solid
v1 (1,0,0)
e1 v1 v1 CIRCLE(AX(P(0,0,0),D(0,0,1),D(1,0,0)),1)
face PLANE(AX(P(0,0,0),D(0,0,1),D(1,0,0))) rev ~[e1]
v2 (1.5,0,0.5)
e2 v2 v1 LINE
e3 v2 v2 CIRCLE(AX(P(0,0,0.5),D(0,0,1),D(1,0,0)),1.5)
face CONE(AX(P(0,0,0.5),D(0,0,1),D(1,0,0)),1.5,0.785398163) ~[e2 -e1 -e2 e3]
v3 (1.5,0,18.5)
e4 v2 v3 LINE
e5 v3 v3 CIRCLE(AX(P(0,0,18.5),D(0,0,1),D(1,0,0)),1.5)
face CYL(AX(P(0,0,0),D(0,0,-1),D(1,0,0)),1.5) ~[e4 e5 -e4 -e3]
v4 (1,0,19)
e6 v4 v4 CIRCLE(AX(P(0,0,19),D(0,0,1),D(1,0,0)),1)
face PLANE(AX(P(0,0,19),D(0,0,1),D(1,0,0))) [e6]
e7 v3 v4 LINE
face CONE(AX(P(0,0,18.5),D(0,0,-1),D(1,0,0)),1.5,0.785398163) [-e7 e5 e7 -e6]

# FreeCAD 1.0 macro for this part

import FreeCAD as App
import Part
import Sketcher


def edges_at(feature, points):
    """Names of the edges that pass closest to the given points."""
    edges = feature.Shape.Edges
    near = lambda p: min(range(len(edges)), key=lambda i: edges[i].distToShape(Part.Vertex(*p))[0])
    return sorted({f"Edge{near(p) + 1}" for p in points})

doc = App.newDocument("Part")
params = doc.addObject("Spreadsheet::Sheet", "Params")
for row, (alias, value) in enumerate([
    ("sketch1_diameter", "3 mm"),
    ("pad1_length", "19 mm"),
    ("chamfer_size", "0.5 mm"),
], start=1):
    params.set(f"A{row}", alias)
    params.set(f"B{row}", "=" + value)
    params.setAlias(f"B{row}", alias)

body = doc.addObject("PartDesign::Body", "Body")

sketch1 = body.newObject("Sketcher::SketchObject", "Sketch")
sketch1.AttachmentSupport = (doc.getObject("XY_Plane"), [""])
sketch1.MapMode = "FlatFace"
sketch1.addGeometry(Part.Circle(App.Vector(0, 0, 0), App.Vector(0, 0, 1), 1.5), False)
sketch1.addConstraint([
    Sketcher.Constraint("Coincident", 0, 3, -1, 1),
    Sketcher.Constraint("Diameter", 0, 3.0),
])
sketch1.setExpression("Constraints[1]", "Params.sketch1_diameter")
pad1 = body.newObject("PartDesign::Pad", "Pad")
pad1.Profile = sketch1
pad1.setExpression("Length", "Params.pad1_length")
doc.recompute()

chamfer = body.newObject("PartDesign::Chamfer", "Chamfer")
chamfer.Base = (pad1, edges_at(pad1, [(-1.5, 0, 19), (-1.5, 0, 0)]))
chamfer.setExpression("Size", "Params.chamfer_size")

doc.recompute()
